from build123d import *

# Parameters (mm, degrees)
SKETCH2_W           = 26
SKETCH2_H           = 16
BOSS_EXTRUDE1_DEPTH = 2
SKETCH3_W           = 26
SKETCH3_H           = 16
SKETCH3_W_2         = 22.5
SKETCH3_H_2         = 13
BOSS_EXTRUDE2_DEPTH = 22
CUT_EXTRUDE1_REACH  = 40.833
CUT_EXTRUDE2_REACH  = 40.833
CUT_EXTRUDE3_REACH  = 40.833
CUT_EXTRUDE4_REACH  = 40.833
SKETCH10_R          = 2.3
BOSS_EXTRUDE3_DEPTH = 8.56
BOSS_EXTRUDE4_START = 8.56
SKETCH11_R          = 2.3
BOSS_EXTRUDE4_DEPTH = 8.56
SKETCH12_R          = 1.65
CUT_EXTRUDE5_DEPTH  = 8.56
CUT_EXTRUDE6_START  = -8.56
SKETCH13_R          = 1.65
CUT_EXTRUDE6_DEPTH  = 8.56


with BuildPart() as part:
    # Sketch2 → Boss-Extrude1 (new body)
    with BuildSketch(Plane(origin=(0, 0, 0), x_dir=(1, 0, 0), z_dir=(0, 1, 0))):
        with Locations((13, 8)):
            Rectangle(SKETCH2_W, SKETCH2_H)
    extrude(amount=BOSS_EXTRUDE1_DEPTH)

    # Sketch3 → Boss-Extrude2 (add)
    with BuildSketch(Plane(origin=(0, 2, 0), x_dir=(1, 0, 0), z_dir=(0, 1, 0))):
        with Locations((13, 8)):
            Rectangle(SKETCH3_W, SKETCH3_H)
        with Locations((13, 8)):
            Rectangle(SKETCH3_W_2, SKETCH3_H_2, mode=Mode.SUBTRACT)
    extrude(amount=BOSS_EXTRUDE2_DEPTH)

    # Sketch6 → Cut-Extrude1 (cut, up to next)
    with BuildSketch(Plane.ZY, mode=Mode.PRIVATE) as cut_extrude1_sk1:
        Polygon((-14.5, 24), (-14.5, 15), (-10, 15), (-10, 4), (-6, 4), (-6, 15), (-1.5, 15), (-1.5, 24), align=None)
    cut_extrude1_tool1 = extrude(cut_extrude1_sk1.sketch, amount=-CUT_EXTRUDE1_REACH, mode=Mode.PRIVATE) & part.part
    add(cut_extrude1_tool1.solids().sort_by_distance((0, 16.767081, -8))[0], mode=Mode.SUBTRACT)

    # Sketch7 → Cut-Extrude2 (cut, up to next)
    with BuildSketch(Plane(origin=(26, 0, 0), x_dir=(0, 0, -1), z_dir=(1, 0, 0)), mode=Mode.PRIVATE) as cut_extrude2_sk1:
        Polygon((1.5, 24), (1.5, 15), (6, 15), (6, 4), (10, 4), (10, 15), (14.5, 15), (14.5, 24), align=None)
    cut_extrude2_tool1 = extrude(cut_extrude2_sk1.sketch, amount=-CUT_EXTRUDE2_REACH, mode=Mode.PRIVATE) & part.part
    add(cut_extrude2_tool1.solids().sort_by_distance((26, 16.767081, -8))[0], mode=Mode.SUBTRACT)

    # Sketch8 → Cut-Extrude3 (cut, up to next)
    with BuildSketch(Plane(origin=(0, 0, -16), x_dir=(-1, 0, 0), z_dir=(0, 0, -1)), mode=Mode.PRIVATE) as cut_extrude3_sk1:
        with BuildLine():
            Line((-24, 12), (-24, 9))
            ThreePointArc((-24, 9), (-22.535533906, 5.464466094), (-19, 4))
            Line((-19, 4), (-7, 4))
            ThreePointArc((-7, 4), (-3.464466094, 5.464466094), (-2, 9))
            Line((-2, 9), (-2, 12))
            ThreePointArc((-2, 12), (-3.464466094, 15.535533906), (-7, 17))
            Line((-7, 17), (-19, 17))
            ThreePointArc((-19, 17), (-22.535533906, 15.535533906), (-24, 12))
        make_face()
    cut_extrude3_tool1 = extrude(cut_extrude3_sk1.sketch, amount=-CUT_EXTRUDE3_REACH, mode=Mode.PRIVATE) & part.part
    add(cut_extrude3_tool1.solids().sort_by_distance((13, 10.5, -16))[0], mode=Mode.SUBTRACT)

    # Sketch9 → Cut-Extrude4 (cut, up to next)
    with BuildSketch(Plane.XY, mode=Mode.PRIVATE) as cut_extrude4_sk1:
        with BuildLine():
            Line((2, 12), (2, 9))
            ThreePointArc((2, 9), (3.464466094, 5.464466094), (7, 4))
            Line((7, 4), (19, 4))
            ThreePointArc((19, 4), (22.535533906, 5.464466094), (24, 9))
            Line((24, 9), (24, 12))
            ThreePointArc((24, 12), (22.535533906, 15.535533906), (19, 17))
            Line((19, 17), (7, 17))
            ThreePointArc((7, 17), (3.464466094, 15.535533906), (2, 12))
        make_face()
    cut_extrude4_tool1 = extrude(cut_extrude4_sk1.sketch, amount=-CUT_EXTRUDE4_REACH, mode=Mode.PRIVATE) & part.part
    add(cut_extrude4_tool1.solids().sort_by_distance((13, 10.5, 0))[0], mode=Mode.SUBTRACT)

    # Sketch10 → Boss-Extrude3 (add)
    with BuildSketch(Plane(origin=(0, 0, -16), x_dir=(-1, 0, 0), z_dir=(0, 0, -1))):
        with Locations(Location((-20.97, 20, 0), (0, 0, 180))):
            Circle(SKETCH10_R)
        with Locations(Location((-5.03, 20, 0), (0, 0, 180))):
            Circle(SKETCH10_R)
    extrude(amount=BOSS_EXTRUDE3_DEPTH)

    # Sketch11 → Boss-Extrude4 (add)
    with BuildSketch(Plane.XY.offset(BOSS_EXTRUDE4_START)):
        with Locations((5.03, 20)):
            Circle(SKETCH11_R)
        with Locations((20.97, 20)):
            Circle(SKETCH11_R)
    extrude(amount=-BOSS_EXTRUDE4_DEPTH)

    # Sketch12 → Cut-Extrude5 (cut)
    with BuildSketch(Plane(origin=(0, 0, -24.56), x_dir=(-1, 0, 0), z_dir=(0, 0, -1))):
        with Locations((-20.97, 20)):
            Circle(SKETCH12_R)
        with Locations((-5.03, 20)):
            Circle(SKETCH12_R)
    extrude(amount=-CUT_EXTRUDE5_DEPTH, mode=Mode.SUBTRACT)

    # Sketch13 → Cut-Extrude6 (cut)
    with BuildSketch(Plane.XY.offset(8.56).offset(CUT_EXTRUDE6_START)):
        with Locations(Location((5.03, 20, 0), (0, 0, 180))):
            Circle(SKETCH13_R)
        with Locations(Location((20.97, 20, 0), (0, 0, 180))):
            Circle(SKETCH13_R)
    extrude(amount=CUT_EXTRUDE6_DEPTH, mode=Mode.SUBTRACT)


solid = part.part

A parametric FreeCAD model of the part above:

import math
import FreeCAD as App
import Part
import Sketcher
Q = App.Units.Quantity


def add_polygon(sketch, points):
    """Adds a closed chain of lines whose ends are joined by coincident constraints."""
    first, n = sketch.GeometryCount, len(points)
    for a, b in zip(points, points[1:] + points[:1]):
        sketch.addGeometry(Part.LineSegment(App.Vector(*a, 0), App.Vector(*b, 0)), False)
    for i in range(n):
        sketch.addConstraint(Sketcher.Constraint("Coincident", first + i, 2, first + (i + 1) % n, 1))

doc = App.newDocument("Part")
body = doc.addObject("PartDesign::Body", "Body")

# Sketch on XZ plane
sketch1 = doc.addObject("Sketcher::SketchObject", "Sketch")
body.addObject(sketch1)
sketch1.AttachmentSupport = (doc.XZ_Plane, [""])
sketch1.MapMode = "FlatFace"
add_polygon(sketch1, [(0, -16), (0, 0), (26, 0), (26, -16)])  # lines 0-3
sketch1.addConstraint(Sketcher.Constraint("Vertical", 0))
sketch1.addConstraint(Sketcher.Constraint("Horizontal", 1))
sketch1.addConstraint(Sketcher.Constraint("Vertical", 2))
sketch1.addConstraint(Sketcher.Constraint("Horizontal", 3))
sketch1.addConstraint(Sketcher.Constraint("Coincident", 0, 2, -1, 1))
sketch1.addConstraint(Sketcher.Constraint("DistanceX", 1, 1, 1, 2, Q("26 mm")))
sketch1.addConstraint(Sketcher.Constraint("DistanceY", 0, 1, 0, 2, Q("16 mm")))
pad1 = doc.addObject("PartDesign::Pad", "Pad")
body.addObject(pad1)
pad1.Profile = sketch1
pad1.Length = 2
pad1.Reversed = True

# Sketch on XZ plane
sketch2 = doc.addObject("Sketcher::SketchObject", "Sketch001")
body.addObject(sketch2)
sketch2.AttachmentSupport = (doc.XZ_Plane, [""])
sketch2.MapMode = "FlatFace"
sketch2.AttachmentOffset = App.Placement(App.Vector(0, 0, -2), App.Rotation())
add_polygon(sketch2, [(0, -16), (0, 0), (26, 0), (26, -16)])  # lines 0-3
add_polygon(sketch2, [(24.25, -1.5), (1.75, -1.5), (1.75, -14.5), (24.25, -14.5)])  # lines 4-7
sketch2.addConstraint(Sketcher.Constraint("Vertical", 0))
sketch2.addConstraint(Sketcher.Constraint("Horizontal", 1))
sketch2.addConstraint(Sketcher.Constraint("Vertical", 2))
sketch2.addConstraint(Sketcher.Constraint("Horizontal", 3))
sketch2.addConstraint(Sketcher.Constraint("Horizontal", 4))
sketch2.addConstraint(Sketcher.Constraint("Vertical", 5))
sketch2.addConstraint(Sketcher.Constraint("Horizontal", 6))
sketch2.addConstraint(Sketcher.Constraint("Vertical", 7))
sketch2.addConstraint(Sketcher.Constraint("Coincident", 0, 2, -1, 1))
sketch2.addConstraint(Sketcher.Constraint("DistanceX", 1, 1, 1, 2, Q("26 mm")))
sketch2.addConstraint(Sketcher.Constraint("DistanceY", 0, 1, 0, 2, Q("16 mm")))
sketch2.addConstraint(Sketcher.Constraint("DistanceY", 5, 2, 5, 1, Q("13 mm")))
sketch2.addConstraint(Sketcher.Constraint("DistanceX", 4, 2, 4, 1, Q("22.5 mm")))
sketch2.addConstraint(Sketcher.Constraint("DistanceY", 4, 2, -1, 1, Q("1.5 mm")))
sketch2.addConstraint(Sketcher.Constraint("DistanceX", -1, 1, 4, 2, Q("1.75 mm")))
pad2 = doc.addObject("PartDesign::Pad", "Pad001")
body.addObject(pad2)
pad2.Profile = sketch2
pad2.Length = 22
pad2.Reversed = True

# Sketch on YZ plane
sketch3 = doc.addObject("Sketcher::SketchObject", "Sketch002")
body.addObject(sketch3)
sketch3.AttachmentSupport = (doc.YZ_Plane, [""])
sketch3.MapMode = "FlatFace"
add_polygon(sketch3, [(24, -14.5), (15, -14.5), (15, -10), (4, -10), (4, -6), (15, -6), (15, -1.5), (24, -1.5)])  # lines 0-7
sketch3.addConstraint(Sketcher.Constraint("Horizontal", 0))
sketch3.addConstraint(Sketcher.Constraint("Vertical", 1))
sketch3.addConstraint(Sketcher.Constraint("Horizontal", 2))
sketch3.addConstraint(Sketcher.Constraint("Vertical", 3))
sketch3.addConstraint(Sketcher.Constraint("Horizontal", 4))
sketch3.addConstraint(Sketcher.Constraint("Vertical", 5))
sketch3.addConstraint(Sketcher.Constraint("Horizontal", 6))
sketch3.addConstraint(Sketcher.Constraint("Vertical", 7))
sketch3.addConstraint(Sketcher.Constraint("Vertical", 1, 2, 4, 2))
sketch3.addConstraint(Sketcher.Constraint("Equal", 1, 5))
sketch3.addConstraint(Sketcher.Constraint("DistanceX", 0, 2, 0, 1, Q("9 mm")))
sketch3.addConstraint(Sketcher.Constraint("DistanceX", 2, 2, 2, 1, Q("11 mm")))
sketch3.addConstraint(Sketcher.Constraint("DistanceY", 3, 1, 3, 2, Q("4 mm")))
sketch3.addConstraint(Sketcher.Constraint("DistanceY", 7, 2, 7, 1, Q("13 mm")))
sketch3.addConstraint(Sketcher.Constraint("DistanceX", -1, 1, 0, 2, Q("15 mm")))
sketch3.addConstraint(Sketcher.Constraint("DistanceY", 1, 2, -1, 1, Q("10 mm")))
pocket1 = doc.addObject("PartDesign::Pocket", "Pocket")
body.addObject(pocket1)
pocket1.Profile = sketch3
pocket1.Type = "UpToFirst"
pocket1.Reversed = True

# Sketch on YZ plane
sketch4 = doc.addObject("Sketcher::SketchObject", "Sketch003")
body.addObject(sketch4)
sketch4.AttachmentSupport = (doc.YZ_Plane, [""])
sketch4.MapMode = "FlatFace"
sketch4.AttachmentOffset = App.Placement(App.Vector(0, 0, 26), App.Rotation())
add_polygon(sketch4, [(24, -1.5), (15, -1.5), (15, -6), (4, -6), (4, -10), (15, -10), (15, -14.5), (24, -14.5)])  # lines 0-7
sketch4.addConstraint(Sketcher.Constraint("Horizontal", 0))
sketch4.addConstraint(Sketcher.Constraint("Vertical", 1))
sketch4.addConstraint(Sketcher.Constraint("Horizontal", 2))
sketch4.addConstraint(Sketcher.Constraint("Vertical", 3))
sketch4.addConstraint(Sketcher.Constraint("Horizontal", 4))
sketch4.addConstraint(Sketcher.Constraint("Vertical", 5))
sketch4.addConstraint(Sketcher.Constraint("Horizontal", 6))
sketch4.addConstraint(Sketcher.Constraint("Vertical", 7))
sketch4.addConstraint(Sketcher.Constraint("Vertical", 1, 2, 4, 2))
sketch4.addConstraint(Sketcher.Constraint("Equal", 1, 5))
sketch4.addConstraint(Sketcher.Constraint("DistanceX", 0, 2, 0, 1, Q("9 mm")))
sketch4.addConstraint(Sketcher.Constraint("DistanceX", 2, 2, 2, 1, Q("11 mm")))
sketch4.addConstraint(Sketcher.Constraint("DistanceY", 3, 2, 3, 1, Q("4 mm")))
sketch4.addConstraint(Sketcher.Constraint("DistanceY", 7, 1, 7, 2, Q("13 mm")))
sketch4.addConstraint(Sketcher.Constraint("DistanceX", -1, 1, 0, 2, Q("15 mm")))
sketch4.addConstraint(Sketcher.Constraint("DistanceY", 1, 2, -1, 1, Q("6 mm")))
pocket2 = doc.addObject("PartDesign::Pocket", "Pocket001")
body.addObject(pocket2)
pocket2.Profile = sketch4
pocket2.Type = "UpToFirst"

# Sketch on XY plane
sketch5 = doc.addObject("Sketcher::SketchObject", "Sketch004")
body.addObject(sketch5)
sketch5.AttachmentSupport = (doc.XY_Plane, [""])
sketch5.MapMode = "FlatFace"
sketch5.AttachmentOffset = App.Placement(App.Vector(0, 0, -16), App.Rotation())
sketch5.addGeometry(Part.LineSegment(App.Vector(24, 12, 0), App.Vector(24, 9, 0)), False)
sketch5.addGeometry(Part.ArcOfCircle(Part.Circle(App.Vector(19, 9, 0), App.Vector(0, 0, 1), 5), math.radians(-90), math.radians(0)), False)
sketch5.addGeometry(Part.LineSegment(App.Vector(19, 4, 0), App.Vector(7, 4, 0)), False)
sketch5.addGeometry(Part.ArcOfCircle(Part.Circle(App.Vector(7, 9, 0), App.Vector(0, 0, 1), 5), math.radians(180), math.radians(270)), False)
sketch5.addGeometry(Part.LineSegment(App.Vector(2, 9, 0), App.Vector(2, 12, 0)), False)
sketch5.addGeometry(Part.ArcOfCircle(Part.Circle(App.Vector(7, 12, 0), App.Vector(0, 0, 1), 5), math.radians(90), math.radians(180)), False)
sketch5.addGeometry(Part.LineSegment(App.Vector(7, 17, 0), App.Vector(19, 17, 0)), False)
sketch5.addGeometry(Part.ArcOfCircle(Part.Circle(App.Vector(19, 12, 0), App.Vector(0, 0, 1), 5), math.radians(0), math.radians(90)), False)
sketch5.addConstraint(Sketcher.Constraint("Tangent", 0, 2, 1, 2))
sketch5.addConstraint(Sketcher.Constraint("Tangent", 1, 1, 2, 1))
sketch5.addConstraint(Sketcher.Constraint("Tangent", 2, 2, 3, 2))
sketch5.addConstraint(Sketcher.Constraint("Tangent", 3, 1, 4, 1))
sketch5.addConstraint(Sketcher.Constraint("Tangent", 4, 2, 5, 2))
sketch5.addConstraint(Sketcher.Constraint("Tangent", 5, 1, 6, 1))
sketch5.addConstraint(Sketcher.Constraint("Tangent", 6, 2, 7, 2))
sketch5.addConstraint(Sketcher.Constraint("Tangent", 7, 1, 0, 1))
sketch5.addConstraint(Sketcher.Constraint("Vertical", 0))
sketch5.addConstraint(Sketcher.Constraint("Horizontal", 2))
sketch5.addConstraint(Sketcher.Constraint("Vertical", 4))
sketch5.addConstraint(Sketcher.Constraint("Horizontal", 6))
sketch5.addConstraint(Sketcher.Constraint("Equal", 1, 3))
sketch5.addConstraint(Sketcher.Constraint("Equal", 3, 5))
sketch5.addConstraint(Sketcher.Constraint("Equal", 5, 7))
sketch5.addConstraint(Sketcher.Constraint("Radius", 1, Q("5 mm")))
sketch5.addConstraint(Sketcher.Constraint("DistanceX", 2, 2, 2, 1, Q("12 mm")))
sketch5.addConstraint(Sketcher.Constraint("DistanceY", 0, 2, 0, 1, Q("3 mm")))
sketch5.addConstraint(Sketcher.Constraint("DistanceX", -1, 1, 1, 3, Q("19 mm")))
sketch5.addConstraint(Sketcher.Constraint("DistanceY", -1, 1, 1, 3, Q("9 mm")))
pocket3 = doc.addObject("PartDesign::Pocket", "Pocket002")
body.addObject(pocket3)
pocket3.Profile = sketch5
pocket3.Type = "UpToFirst"
pocket3.Reversed = True

# Sketch on XY plane
sketch6 = doc.addObject("Sketcher::SketchObject", "Sketch005")
body.addObject(sketch6)
sketch6.AttachmentSupport = (doc.XY_Plane, [""])
sketch6.MapMode = "FlatFace"
sketch6.addGeometry(Part.LineSegment(App.Vector(2, 12, 0), App.Vector(2, 9, 0)), False)
sketch6.addGeometry(Part.ArcOfCircle(Part.Circle(App.Vector(7, 9, 0), App.Vector(0, 0, 1), 5), math.radians(180), math.radians(270)), False)
sketch6.addGeometry(Part.LineSegment(App.Vector(7, 4, 0), App.Vector(19, 4, 0)), False)
sketch6.addGeometry(Part.ArcOfCircle(Part.Circle(App.Vector(19, 9, 0), App.Vector(0, 0, 1), 5), math.radians(-90), math.radians(0)), False)
sketch6.addGeometry(Part.LineSegment(App.Vector(24, 9, 0), App.Vector(24, 12, 0)), False)
sketch6.addGeometry(Part.ArcOfCircle(Part.Circle(App.Vector(19, 12, 0), App.Vector(0, 0, 1), 5), math.radians(0), math.radians(90)), False)
sketch6.addGeometry(Part.LineSegment(App.Vector(19, 17, 0), App.Vector(7, 17, 0)), False)
sketch6.addGeometry(Part.ArcOfCircle(Part.Circle(App.Vector(7, 12, 0), App.Vector(0, 0, 1), 5), math.radians(90), math.radians(180)), False)
sketch6.addConstraint(Sketcher.Constraint("Tangent", 0, 2, 1, 1))
sketch6.addConstraint(Sketcher.Constraint("Tangent", 1, 2, 2, 1))
sketch6.addConstraint(Sketcher.Constraint("Tangent", 2, 2, 3, 1))
sketch6.addConstraint(Sketcher.Constraint("Tangent", 3, 2, 4, 1))
sketch6.addConstraint(Sketcher.Constraint("Tangent", 4, 2, 5, 1))
sketch6.addConstraint(Sketcher.Constraint("Tangent", 5, 2, 6, 1))
sketch6.addConstraint(Sketcher.Constraint("Tangent", 6, 2, 7, 1))
sketch6.addConstraint(Sketcher.Constraint("Tangent", 7, 2, 0, 1))
sketch6.addConstraint(Sketcher.Constraint("Vertical", 0))
sketch6.addConstraint(Sketcher.Constraint("Horizontal", 2))
sketch6.addConstraint(Sketcher.Constraint("Vertical", 4))
sketch6.addConstraint(Sketcher.Constraint("Horizontal", 6))
sketch6.addConstraint(Sketcher.Constraint("Equal", 1, 3))
sketch6.addConstraint(Sketcher.Constraint("Equal", 3, 5))
sketch6.addConstraint(Sketcher.Constraint("Equal", 5, 7))
sketch6.addConstraint(Sketcher.Constraint("Radius", 1, Q("5 mm")))
sketch6.addConstraint(Sketcher.Constraint("DistanceX", 2, 1, 2, 2, Q("12 mm")))
sketch6.addConstraint(Sketcher.Constraint("DistanceY", 0, 2, 0, 1, Q("3 mm")))
sketch6.addConstraint(Sketcher.Constraint("DistanceX", -1, 1, 1, 3, Q("7 mm")))
sketch6.addConstraint(Sketcher.Constraint("DistanceY", -1, 1, 1, 3, Q("9 mm")))
pocket4 = doc.addObject("PartDesign::Pocket", "Pocket003")
body.addObject(pocket4)
pocket4.Profile = sketch6
pocket4.Type = "UpToFirst"

# Sketch on XY plane
sketch7 = doc.addObject("Sketcher::SketchObject", "Sketch006")
body.addObject(sketch7)
sketch7.AttachmentSupport = (doc.XY_Plane, [""])
sketch7.MapMode = "FlatFace"
sketch7.AttachmentOffset = App.Placement(App.Vector(0, 0, -16), App.Rotation())
sketch7.addGeometry(Part.Circle(App.Vector(20.97, 20, 0), App.Vector(0, 0, 1), 2.3), False)
sketch7.addGeometry(Part.Circle(App.Vector(5.03, 20, 0), App.Vector(0, 0, 1), 2.3), False)
sketch7.addConstraint(Sketcher.Constraint("Equal", 0, 1))
sketch7.addConstraint(Sketcher.Constraint("Horizontal", 0, 3, 1, 3))
sketch7.addConstraint(Sketcher.Constraint("Diameter", 0, Q("4.6 mm")))
sketch7.addConstraint(Sketcher.Constraint("DistanceY", -1, 1, 0, 3, Q("20 mm")))
sketch7.addConstraint(Sketcher.Constraint("DistanceX", -1, 1, 0, 3, Q("20.97 mm")))
sketch7.addConstraint(Sketcher.Constraint("DistanceX", -1, 1, 1, 3, Q("5.03 mm")))
pad3 = doc.addObject("PartDesign::Pad", "Pad002")
body.addObject(pad3)
pad3.Profile = sketch7
pad3.Length = 8.56
pad3.Reversed = True

# Sketch on XY plane
sketch8 = doc.addObject("Sketcher::SketchObject", "Sketch007")
body.addObject(sketch8)
sketch8.AttachmentSupport = (doc.XY_Plane, [""])
sketch8.MapMode = "FlatFace"
sketch8.AttachmentOffset = App.Placement(App.Vector(0, 0, 8.56), App.Rotation())
sketch8.addGeometry(Part.Circle(App.Vector(5.03, 20, 0), App.Vector(0, 0, 1), 2.3), False)
sketch8.addGeometry(Part.Circle(App.Vector(20.97, 20, 0), App.Vector(0, 0, 1), 2.3), False)
sketch8.addConstraint(Sketcher.Constraint("Equal", 0, 1))
sketch8.addConstraint(Sketcher.Constraint("Horizontal", 0, 3, 1, 3))
sketch8.addConstraint(Sketcher.Constraint("Diameter", 0, Q("4.6 mm")))
sketch8.addConstraint(Sketcher.Constraint("DistanceY", -1, 1, 0, 3, Q("20 mm")))
sketch8.addConstraint(Sketcher.Constraint("DistanceX", -1, 1, 0, 3, Q("5.03 mm")))
sketch8.addConstraint(Sketcher.Constraint("DistanceX", -1, 1, 1, 3, Q("20.97 mm")))
pad4 = doc.addObject("PartDesign::Pad", "Pad003")
body.addObject(pad4)
pad4.Profile = sketch8
pad4.Length = 8.56
pad4.Reversed = True

# Sketch on XY plane
sketch9 = doc.addObject("Sketcher::SketchObject", "Sketch008")
body.addObject(sketch9)
sketch9.AttachmentSupport = (doc.XY_Plane, [""])
sketch9.MapMode = "FlatFace"
sketch9.AttachmentOffset = App.Placement(App.Vector(0, 0, -24.56), App.Rotation())
sketch9.addGeometry(Part.Circle(App.Vector(20.97, 20, 0), App.Vector(0, 0, 1), 1.65), False)
sketch9.addGeometry(Part.Circle(App.Vector(5.03, 20, 0), App.Vector(0, 0, 1), 1.65), False)
sketch9.addConstraint(Sketcher.Constraint("Equal", 0, 1))
sketch9.addConstraint(Sketcher.Constraint("Horizontal", 0, 3, 1, 3))
sketch9.addConstraint(Sketcher.Constraint("Diameter", 0, Q("3.3 mm")))
sketch9.addConstraint(Sketcher.Constraint("DistanceY", -1, 1, 0, 3, Q("20 mm")))
sketch9.addConstraint(Sketcher.Constraint("DistanceX", -1, 1, 0, 3, Q("20.97 mm")))
sketch9.addConstraint(Sketcher.Constraint("DistanceX", -1, 1, 1, 3, Q("5.03 mm")))
pocket5 = doc.addObject("PartDesign::Pocket", "Pocket004")
body.addObject(pocket5)
pocket5.Profile = sketch9
pocket5.Length = 8.56
pocket5.Reversed = True

# Sketch on XY plane
sketch10 = doc.addObject("Sketcher::SketchObject", "Sketch009")
body.addObject(sketch10)
sketch10.AttachmentSupport = (doc.XY_Plane, [""])
sketch10.MapMode = "FlatFace"
sketch10.addGeometry(Part.Circle(App.Vector(5.03, 20, 0), App.Vector(0, 0, 1), 1.65), False)
sketch10.addGeometry(Part.Circle(App.Vector(20.97, 20, 0), App.Vector(0, 0, 1), 1.65), False)
sketch10.addConstraint(Sketcher.Constraint("Equal", 0, 1))
sketch10.addConstraint(Sketcher.Constraint("Horizontal", 0, 3, 1, 3))
sketch10.addConstraint(Sketcher.Constraint("Diameter", 0, Q("3.3 mm")))
sketch10.addConstraint(Sketcher.Constraint("DistanceY", -1, 1, 0, 3, Q("20 mm")))
sketch10.addConstraint(Sketcher.Constraint("DistanceX", -1, 1, 0, 3, Q("5.03 mm")))
sketch10.addConstraint(Sketcher.Constraint("DistanceX", -1, 1, 1, 3, Q("20.97 mm")))
pocket6 = doc.addObject("PartDesign::Pocket", "Pocket005")
body.addObject(pocket6)
pocket6.Profile = sketch10
pocket6.Length = 8.56
pocket6.Reversed = True

doc.recompute()
